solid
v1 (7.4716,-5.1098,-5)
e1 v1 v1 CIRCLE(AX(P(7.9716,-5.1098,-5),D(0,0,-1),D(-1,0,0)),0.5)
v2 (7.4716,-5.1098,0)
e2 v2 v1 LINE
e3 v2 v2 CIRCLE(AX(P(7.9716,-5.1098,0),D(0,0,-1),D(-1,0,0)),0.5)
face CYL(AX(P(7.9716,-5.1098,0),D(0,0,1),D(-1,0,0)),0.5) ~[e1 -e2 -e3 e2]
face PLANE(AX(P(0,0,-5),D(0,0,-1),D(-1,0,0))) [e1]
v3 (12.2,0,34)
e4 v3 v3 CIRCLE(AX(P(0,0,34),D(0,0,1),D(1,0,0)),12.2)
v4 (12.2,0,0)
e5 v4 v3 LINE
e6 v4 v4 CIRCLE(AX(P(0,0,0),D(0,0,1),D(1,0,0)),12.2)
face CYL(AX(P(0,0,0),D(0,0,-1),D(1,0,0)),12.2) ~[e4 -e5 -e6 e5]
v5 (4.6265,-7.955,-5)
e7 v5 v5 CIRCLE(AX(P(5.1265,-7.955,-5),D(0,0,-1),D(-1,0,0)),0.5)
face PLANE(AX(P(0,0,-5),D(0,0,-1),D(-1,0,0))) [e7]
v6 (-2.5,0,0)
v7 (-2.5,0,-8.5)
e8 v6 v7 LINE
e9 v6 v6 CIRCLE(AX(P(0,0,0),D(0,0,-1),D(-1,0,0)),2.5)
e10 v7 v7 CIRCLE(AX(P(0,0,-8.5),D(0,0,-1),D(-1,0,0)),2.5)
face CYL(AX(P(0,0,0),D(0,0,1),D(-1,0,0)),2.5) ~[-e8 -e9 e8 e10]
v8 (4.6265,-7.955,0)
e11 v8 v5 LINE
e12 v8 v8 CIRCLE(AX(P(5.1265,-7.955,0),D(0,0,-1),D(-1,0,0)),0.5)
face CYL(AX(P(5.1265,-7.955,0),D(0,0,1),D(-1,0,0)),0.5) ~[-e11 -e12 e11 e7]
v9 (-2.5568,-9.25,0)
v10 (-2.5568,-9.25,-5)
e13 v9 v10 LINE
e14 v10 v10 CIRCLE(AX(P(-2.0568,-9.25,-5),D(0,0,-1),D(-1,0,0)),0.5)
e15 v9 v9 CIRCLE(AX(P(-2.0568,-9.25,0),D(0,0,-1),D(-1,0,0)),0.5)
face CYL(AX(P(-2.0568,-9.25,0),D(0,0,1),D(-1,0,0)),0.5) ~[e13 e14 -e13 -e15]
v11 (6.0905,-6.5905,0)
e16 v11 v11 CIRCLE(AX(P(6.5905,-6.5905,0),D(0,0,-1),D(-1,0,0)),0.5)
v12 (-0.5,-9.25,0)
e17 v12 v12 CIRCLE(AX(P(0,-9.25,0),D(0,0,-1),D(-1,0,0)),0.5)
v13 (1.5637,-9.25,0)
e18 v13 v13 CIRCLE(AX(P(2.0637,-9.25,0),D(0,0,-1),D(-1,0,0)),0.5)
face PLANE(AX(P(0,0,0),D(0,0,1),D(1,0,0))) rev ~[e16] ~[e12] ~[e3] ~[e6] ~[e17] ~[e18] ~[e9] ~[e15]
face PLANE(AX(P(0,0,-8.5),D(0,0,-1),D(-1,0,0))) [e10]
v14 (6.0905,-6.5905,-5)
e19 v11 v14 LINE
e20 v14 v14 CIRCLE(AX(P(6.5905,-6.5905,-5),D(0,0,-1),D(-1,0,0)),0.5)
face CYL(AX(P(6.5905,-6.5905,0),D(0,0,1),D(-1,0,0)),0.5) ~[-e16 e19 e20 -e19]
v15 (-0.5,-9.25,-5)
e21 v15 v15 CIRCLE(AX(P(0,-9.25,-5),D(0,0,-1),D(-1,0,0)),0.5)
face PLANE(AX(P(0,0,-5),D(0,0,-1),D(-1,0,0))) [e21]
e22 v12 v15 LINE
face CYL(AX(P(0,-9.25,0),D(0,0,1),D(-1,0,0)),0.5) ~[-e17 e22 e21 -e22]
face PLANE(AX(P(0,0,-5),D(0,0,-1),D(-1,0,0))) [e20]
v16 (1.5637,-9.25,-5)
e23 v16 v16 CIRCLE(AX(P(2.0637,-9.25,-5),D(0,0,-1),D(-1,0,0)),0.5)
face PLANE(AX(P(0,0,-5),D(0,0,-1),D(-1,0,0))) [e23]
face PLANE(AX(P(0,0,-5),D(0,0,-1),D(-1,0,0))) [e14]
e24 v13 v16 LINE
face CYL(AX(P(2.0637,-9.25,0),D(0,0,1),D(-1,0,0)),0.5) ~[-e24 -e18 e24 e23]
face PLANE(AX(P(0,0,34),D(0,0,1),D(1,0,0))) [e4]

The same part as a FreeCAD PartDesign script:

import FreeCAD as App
import Part
import Sketcher

doc = App.newDocument("Part")
body = doc.addObject("PartDesign::Body", "Body")

sketch1 = body.newObject("Sketcher::SketchObject", "Sketch")
sketch1.AttachmentSupport = (doc.getObject("XY_Plane"), [""])
sketch1.MapMode = "FlatFace"
sketch1.addGeometry(Part.Circle(App.Vector(0, 0, 0), App.Vector(0, 0, 1), 12), False)
sketch1.addConstraint(Sketcher.Constraint("Coincident", 0, 3, -1, 1))
sketch1.addConstraint(Sketcher.Constraint("Diameter", 0, 24.4))
pad1 = body.newObject("PartDesign::Pad", "Pad")
pad1.Profile = sketch1
pad1.Length = 34

sketch2 = body.newObject("Sketcher::SketchObject", "Sketch001")
sketch2.AttachmentSupport = (doc.getObject("XY_Plane"), [""])
sketch2.MapMode = "FlatFace"
sketch2.addGeometry(Part.Circle(App.Vector(0, 0, 0), App.Vector(0, 0, 1), 2.5), False)
sketch2.addConstraint(Sketcher.Constraint("Coincident", 0, 3, -1, 1))
sketch2.addConstraint(Sketcher.Constraint("Diameter", 0, 5.0))
pad2 = body.newObject("PartDesign::Pad", "Pad001")
pad2.Profile = sketch2
pad2.Length = 8.5
pad2.Reversed = True

sketch3 = body.newObject("Sketcher::SketchObject", "Sketch002")
sketch3.AttachmentSupport = (doc.getObject("XY_Plane"), [""])
sketch3.MapMode = "FlatFace"
sketch3.addGeometry(Part.Circle(App.Vector(2.1, -9.2, 0), App.Vector(0, 0, 1), 0.5), False)
sketch3.addGeometry(Part.Circle(App.Vector(-2.1, -9.2, 0), App.Vector(0, 0, 1), 0.5), False)
sketch3.addGeometry(Part.Circle(App.Vector(0, -9.2, 0), App.Vector(0, 0, 1), 0.5), False)
sketch3.addConstraint(Sketcher.Constraint("Equal", 0, 1))
sketch3.addConstraint(Sketcher.Constraint("Equal", 1, 2))
sketch3.addConstraint(Sketcher.Constraint("PointOnObject", 2, 3, -2))
sketch3.addConstraint(Sketcher.Constraint("Horizontal", 0, 3, 1, 3))
sketch3.addConstraint(Sketcher.Constraint("Horizontal", 1, 3, 2, 3))
sketch3.addConstraint(Sketcher.Constraint("Diameter", 0, 1.0))
sketch3.addConstraint(Sketcher.Constraint("DistanceY", 0, 3, -1, 1, 9.25))
sketch3.addConstraint(Sketcher.Constraint("DistanceX", -1, 1, 0, 3, 2.0637))
sketch3.addConstraint(Sketcher.Constraint("DistanceX", 1, 3, -1, 1, 2.0568))
pad3 = body.newObject("PartDesign::Pad", "Pad002")
pad3.Profile = sketch3
pad3.Length = 5
pad3.Reversed = True

sketch4 = body.newObject("Sketcher::SketchObject", "Sketch003")
sketch4.AttachmentSupport = (doc.getObject("XY_Plane"), [""])
sketch4.MapMode = "FlatFace"
sketch4.addGeometry(Part.Circle(App.Vector(6.6, -6.6, 0), App.Vector(0, 0, 1), 0.5), False)
sketch4.addGeometry(Part.Circle(App.Vector(5.1, -8, 0), App.Vector(0, 0, 1), 0.5), False)
sketch4.addGeometry(Part.Circle(App.Vector(8, -5.1, 0), App.Vector(0, 0, 1), 0.5), False)
sketch4.addConstraint(Sketcher.Constraint("Equal", 0, 1))
sketch4.addConstraint(Sketcher.Constraint("Equal", 1, 2))
sketch4.addConstraint(Sketcher.Constraint("Diameter", 0, 1.0))
sketch4.addConstraint(Sketcher.Constraint("DistanceY", 1, 3, -1, 1, 7.955))
sketch4.addConstraint(Sketcher.Constraint("DistanceX", 1, 3, 0, 3, 1.464))
sketch4.addConstraint(Sketcher.Constraint("DistanceX", 0, 3, 2, 3, 1.381))
sketch4.addConstraint(Sketcher.Constraint("DistanceX", -1, 1, 0, 3, 6.5905))
sketch4.addConstraint(Sketcher.Constraint("DistanceY", 0, 3, -1, 1, 6.5905))
sketch4.addConstraint(Sketcher.Constraint("DistanceY", 2, 3, -1, 1, 5.1098))
pad4 = body.newObject("PartDesign::Pad", "Pad003")
pad4.Profile = sketch4
pad4.Length = 5
pad4.Reversed = True

doc.recompute()
